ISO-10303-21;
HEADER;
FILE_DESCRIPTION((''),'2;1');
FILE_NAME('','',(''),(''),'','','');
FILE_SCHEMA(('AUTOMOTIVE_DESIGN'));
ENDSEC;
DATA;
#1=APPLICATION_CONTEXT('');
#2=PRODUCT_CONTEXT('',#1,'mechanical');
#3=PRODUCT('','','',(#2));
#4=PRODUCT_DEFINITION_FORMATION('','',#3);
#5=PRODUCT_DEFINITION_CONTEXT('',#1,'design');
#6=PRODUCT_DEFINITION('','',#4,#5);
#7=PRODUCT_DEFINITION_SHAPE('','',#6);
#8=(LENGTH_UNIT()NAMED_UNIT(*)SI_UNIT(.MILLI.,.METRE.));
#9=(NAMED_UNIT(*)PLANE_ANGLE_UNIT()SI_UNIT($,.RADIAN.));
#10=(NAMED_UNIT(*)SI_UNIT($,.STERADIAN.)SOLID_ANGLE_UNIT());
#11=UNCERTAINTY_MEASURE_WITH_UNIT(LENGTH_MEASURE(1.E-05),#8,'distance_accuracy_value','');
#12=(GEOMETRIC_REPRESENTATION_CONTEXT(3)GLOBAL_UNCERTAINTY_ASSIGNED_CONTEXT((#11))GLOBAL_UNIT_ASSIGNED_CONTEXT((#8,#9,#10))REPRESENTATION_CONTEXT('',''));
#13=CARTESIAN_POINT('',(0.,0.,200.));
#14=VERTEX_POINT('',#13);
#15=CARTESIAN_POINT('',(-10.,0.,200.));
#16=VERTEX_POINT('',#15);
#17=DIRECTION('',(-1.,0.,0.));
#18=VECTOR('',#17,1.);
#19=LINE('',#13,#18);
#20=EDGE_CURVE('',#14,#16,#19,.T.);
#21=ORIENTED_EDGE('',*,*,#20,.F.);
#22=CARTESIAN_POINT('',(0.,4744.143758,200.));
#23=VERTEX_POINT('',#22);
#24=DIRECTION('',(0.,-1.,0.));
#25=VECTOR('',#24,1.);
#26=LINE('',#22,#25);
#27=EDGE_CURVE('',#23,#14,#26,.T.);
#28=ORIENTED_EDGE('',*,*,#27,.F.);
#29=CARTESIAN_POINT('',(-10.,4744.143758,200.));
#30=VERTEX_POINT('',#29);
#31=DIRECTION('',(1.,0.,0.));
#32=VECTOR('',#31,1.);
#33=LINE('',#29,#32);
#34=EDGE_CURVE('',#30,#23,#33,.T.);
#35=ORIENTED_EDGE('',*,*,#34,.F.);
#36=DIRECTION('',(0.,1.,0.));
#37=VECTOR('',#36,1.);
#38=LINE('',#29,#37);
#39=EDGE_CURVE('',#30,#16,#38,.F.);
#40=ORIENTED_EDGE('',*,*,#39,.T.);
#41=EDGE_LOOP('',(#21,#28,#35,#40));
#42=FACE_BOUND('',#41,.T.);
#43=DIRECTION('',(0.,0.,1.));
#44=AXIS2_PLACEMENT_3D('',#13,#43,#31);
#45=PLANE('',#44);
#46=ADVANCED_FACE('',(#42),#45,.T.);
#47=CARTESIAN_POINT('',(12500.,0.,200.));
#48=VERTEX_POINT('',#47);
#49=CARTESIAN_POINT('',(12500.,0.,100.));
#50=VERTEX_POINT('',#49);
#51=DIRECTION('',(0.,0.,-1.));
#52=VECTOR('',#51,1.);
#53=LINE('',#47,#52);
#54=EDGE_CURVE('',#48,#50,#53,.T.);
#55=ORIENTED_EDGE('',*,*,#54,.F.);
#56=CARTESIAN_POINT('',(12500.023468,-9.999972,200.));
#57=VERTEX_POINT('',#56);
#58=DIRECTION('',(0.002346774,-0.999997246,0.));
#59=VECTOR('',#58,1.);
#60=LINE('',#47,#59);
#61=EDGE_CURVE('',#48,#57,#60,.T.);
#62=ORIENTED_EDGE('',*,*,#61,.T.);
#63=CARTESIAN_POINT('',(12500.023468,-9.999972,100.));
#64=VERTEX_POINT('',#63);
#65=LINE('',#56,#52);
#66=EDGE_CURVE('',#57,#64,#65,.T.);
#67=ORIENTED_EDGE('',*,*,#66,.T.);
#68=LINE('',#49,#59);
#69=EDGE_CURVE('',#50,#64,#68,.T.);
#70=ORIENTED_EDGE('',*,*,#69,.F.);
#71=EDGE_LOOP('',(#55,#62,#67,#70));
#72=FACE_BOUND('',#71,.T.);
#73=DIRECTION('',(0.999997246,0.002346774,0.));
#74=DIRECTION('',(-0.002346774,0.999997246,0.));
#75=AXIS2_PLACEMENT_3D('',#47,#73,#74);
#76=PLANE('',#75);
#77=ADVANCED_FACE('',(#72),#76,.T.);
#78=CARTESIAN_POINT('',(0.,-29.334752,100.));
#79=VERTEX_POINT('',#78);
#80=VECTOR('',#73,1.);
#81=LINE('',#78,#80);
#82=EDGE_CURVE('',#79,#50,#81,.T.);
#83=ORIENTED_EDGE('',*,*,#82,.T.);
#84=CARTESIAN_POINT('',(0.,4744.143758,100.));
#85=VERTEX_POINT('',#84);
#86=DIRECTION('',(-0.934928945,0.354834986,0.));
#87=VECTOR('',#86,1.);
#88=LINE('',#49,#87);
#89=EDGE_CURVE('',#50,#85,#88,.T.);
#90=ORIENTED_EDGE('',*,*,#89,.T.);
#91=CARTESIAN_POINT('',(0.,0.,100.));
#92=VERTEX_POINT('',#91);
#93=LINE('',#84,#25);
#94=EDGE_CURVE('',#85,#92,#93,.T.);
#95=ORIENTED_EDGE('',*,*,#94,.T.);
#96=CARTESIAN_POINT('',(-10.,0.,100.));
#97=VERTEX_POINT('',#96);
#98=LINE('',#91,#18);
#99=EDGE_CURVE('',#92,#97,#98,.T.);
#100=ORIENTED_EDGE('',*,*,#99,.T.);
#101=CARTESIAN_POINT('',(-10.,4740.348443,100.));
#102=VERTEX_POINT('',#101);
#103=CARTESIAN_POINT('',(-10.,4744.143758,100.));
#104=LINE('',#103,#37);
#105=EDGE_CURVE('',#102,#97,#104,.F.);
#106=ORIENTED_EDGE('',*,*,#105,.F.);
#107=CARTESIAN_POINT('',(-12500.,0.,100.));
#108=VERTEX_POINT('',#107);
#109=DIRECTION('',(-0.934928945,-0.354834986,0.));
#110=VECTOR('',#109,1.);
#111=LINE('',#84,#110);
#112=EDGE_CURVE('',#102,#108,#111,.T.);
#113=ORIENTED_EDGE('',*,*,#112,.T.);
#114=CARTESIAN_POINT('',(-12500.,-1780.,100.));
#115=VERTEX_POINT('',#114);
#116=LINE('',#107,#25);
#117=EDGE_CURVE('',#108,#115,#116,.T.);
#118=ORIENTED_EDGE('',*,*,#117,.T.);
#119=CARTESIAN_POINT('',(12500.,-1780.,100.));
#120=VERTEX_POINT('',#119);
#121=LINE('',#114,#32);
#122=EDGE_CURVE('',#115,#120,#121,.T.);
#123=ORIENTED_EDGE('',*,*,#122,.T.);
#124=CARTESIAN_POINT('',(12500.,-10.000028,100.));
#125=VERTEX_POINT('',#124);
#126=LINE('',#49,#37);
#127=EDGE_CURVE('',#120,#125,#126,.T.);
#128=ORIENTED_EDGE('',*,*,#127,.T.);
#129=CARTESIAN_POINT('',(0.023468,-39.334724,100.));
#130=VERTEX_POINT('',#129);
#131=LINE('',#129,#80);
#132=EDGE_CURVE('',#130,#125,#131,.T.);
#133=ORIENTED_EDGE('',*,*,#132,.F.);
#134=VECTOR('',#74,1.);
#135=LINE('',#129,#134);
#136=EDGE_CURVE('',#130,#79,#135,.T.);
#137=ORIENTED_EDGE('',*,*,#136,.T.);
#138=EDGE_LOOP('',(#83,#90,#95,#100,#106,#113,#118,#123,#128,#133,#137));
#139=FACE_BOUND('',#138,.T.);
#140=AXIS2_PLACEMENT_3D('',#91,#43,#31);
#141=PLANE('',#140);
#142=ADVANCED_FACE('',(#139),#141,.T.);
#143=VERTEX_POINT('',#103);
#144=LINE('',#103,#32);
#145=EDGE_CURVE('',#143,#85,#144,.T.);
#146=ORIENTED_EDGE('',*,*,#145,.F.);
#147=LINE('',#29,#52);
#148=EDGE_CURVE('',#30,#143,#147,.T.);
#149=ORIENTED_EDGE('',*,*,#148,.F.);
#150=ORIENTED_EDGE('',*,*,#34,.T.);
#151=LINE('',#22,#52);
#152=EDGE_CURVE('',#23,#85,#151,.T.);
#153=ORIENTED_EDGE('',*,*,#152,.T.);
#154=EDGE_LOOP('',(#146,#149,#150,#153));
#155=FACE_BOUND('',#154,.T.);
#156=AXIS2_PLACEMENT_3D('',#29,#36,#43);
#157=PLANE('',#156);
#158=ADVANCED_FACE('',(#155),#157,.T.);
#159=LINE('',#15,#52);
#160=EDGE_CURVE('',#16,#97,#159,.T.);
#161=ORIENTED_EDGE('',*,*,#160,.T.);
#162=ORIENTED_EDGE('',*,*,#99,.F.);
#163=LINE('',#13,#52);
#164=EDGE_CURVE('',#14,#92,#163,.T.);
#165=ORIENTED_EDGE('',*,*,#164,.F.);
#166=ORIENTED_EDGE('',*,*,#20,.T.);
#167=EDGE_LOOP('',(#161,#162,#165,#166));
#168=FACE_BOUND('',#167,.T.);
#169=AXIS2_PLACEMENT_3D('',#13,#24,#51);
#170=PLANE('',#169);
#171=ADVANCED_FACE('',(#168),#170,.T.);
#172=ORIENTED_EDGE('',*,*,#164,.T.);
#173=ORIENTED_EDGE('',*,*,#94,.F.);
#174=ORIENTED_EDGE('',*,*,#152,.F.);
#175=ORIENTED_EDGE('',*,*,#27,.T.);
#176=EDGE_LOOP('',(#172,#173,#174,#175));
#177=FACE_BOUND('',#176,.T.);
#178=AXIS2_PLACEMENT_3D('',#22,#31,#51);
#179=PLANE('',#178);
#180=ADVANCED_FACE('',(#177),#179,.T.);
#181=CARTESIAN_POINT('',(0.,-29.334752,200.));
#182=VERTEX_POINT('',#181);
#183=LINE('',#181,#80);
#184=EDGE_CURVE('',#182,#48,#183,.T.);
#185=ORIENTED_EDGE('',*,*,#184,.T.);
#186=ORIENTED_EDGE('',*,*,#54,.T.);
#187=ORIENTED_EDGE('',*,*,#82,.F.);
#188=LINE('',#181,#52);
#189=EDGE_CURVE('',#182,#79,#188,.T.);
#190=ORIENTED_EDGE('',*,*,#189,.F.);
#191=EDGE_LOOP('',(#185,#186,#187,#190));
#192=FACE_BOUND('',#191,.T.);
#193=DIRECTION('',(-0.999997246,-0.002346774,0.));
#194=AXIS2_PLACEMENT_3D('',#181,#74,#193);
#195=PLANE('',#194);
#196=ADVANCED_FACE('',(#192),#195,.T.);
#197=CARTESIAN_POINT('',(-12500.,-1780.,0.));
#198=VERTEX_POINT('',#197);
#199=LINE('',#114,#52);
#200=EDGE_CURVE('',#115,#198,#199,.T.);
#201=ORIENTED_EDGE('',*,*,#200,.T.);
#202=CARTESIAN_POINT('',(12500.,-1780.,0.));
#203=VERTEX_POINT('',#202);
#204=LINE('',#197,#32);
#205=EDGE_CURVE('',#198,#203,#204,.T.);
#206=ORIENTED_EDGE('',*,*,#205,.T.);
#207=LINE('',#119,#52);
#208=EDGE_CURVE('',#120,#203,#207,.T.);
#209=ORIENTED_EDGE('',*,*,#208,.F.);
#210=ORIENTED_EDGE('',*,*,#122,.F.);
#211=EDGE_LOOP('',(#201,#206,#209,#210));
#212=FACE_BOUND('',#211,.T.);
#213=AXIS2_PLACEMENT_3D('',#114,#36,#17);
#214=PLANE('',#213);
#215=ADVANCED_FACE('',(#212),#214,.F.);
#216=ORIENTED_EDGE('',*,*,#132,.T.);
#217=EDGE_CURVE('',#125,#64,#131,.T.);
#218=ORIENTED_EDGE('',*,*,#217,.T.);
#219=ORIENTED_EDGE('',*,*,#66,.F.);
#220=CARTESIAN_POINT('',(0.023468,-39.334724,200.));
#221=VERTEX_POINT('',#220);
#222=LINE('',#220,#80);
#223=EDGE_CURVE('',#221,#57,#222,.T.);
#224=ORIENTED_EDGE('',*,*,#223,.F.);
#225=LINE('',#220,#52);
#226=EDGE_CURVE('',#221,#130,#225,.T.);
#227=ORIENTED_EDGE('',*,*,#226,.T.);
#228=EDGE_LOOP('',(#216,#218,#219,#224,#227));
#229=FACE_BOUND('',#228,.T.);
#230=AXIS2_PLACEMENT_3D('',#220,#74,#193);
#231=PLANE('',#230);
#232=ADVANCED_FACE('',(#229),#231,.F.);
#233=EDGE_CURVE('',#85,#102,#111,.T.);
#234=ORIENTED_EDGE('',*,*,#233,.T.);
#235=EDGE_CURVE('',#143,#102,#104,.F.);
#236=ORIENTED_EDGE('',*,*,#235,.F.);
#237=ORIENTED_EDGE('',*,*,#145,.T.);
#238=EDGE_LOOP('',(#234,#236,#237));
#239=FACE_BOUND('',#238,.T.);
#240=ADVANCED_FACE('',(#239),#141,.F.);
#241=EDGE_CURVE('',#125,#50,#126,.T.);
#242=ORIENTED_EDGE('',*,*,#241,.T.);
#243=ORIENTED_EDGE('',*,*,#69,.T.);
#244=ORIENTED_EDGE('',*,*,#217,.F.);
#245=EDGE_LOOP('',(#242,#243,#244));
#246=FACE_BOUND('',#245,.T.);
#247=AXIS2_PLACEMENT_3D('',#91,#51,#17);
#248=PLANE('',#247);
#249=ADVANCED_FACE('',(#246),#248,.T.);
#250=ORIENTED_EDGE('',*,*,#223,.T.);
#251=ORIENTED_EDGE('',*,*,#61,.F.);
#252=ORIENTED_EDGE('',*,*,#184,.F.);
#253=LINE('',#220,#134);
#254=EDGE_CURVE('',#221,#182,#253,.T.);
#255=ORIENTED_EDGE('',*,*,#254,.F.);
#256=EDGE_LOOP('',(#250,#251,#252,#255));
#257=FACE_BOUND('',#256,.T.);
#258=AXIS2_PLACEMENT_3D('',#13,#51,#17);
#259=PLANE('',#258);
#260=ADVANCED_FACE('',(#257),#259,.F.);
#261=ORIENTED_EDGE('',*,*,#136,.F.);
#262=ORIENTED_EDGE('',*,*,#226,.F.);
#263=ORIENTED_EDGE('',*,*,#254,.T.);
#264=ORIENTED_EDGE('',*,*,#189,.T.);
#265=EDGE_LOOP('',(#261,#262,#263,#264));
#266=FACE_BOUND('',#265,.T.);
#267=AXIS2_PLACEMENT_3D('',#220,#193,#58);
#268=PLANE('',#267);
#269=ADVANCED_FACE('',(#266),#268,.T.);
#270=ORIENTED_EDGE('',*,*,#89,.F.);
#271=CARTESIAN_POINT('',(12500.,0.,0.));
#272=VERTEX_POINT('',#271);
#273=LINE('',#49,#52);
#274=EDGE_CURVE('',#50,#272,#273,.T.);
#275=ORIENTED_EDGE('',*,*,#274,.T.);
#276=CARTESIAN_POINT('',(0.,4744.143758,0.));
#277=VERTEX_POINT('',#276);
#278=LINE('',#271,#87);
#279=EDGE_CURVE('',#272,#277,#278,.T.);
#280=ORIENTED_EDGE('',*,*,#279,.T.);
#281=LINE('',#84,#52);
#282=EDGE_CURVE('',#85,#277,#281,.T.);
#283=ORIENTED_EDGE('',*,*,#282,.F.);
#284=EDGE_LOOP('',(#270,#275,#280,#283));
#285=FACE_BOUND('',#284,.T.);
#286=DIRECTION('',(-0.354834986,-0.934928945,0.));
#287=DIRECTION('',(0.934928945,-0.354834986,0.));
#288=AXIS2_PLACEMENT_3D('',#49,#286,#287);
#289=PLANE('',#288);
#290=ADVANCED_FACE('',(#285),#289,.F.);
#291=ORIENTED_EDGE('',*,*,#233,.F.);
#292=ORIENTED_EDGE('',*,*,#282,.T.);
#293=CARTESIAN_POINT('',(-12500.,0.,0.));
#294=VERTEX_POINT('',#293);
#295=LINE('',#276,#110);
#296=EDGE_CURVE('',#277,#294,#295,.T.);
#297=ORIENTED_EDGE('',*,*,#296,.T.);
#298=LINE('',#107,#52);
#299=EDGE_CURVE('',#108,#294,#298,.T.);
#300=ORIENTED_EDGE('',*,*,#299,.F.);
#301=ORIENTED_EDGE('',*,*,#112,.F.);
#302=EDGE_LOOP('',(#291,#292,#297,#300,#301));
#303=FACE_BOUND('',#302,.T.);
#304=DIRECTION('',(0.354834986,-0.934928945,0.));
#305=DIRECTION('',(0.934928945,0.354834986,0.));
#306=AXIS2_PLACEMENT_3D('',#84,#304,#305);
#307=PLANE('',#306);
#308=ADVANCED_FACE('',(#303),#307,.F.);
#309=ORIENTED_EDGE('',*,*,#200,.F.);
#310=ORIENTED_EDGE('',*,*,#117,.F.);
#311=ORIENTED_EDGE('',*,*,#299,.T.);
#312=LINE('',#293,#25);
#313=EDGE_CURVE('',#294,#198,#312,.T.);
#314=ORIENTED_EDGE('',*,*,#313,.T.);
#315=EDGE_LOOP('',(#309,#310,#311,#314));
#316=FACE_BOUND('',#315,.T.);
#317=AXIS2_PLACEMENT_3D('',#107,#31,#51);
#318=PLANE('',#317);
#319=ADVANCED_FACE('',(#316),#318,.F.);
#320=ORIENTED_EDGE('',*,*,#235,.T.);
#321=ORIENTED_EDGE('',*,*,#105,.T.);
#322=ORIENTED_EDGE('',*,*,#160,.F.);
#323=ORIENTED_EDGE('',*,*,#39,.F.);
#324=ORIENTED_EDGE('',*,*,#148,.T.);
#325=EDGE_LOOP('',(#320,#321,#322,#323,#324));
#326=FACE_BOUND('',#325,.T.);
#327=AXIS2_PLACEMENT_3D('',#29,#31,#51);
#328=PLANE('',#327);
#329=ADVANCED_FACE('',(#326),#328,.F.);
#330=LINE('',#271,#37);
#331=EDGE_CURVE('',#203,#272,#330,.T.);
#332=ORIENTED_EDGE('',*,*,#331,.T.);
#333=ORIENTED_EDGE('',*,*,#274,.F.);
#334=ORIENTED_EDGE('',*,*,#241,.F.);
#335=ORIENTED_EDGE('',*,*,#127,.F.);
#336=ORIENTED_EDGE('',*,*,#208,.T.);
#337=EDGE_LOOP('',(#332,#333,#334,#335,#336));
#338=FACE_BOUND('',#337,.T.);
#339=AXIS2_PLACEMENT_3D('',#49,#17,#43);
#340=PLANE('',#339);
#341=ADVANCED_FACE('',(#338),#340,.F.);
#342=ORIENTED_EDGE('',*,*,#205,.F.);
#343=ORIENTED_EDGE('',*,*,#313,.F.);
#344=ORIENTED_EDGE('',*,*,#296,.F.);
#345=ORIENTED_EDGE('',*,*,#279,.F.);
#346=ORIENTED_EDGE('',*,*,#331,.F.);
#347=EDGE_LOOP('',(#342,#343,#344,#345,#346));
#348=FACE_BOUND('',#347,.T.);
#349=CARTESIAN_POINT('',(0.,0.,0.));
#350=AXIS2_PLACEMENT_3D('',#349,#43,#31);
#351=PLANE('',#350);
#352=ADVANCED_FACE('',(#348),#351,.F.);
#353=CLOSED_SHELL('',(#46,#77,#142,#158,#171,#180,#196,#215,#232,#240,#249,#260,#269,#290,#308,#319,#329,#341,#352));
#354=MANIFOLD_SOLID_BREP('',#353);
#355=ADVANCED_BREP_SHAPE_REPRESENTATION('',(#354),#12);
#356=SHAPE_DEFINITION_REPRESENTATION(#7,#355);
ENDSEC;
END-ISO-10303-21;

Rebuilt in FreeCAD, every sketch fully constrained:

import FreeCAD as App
import Part
import Sketcher
from FreeCAD import Vector

doc = App.newDocument("Part")
body = doc.addObject("PartDesign::Body", "Body")

# Sketch on XY plane
sketch1 = body.newObject("Sketcher::SketchObject", "Sketch")
sketch1.AttachmentSupport = (doc.getObject("XY_Plane"), [""])
sketch1.MapMode = "FlatFace"
sketch1.addGeometry([
    Part.LineSegment(Vector(12500, 0, 0), Vector(0, 4744, 0)),  # 0
    Part.LineSegment(Vector(0, 4744, 0), Vector(-12500, 0, 0)),  # 1
    Part.LineSegment(Vector(-12500, 0, 0), Vector(-12500, -1780, 0)),  # 2
    Part.LineSegment(Vector(-12500, -1780, 0), Vector(12500, -1780, 0)),  # 3
    Part.LineSegment(Vector(12500, -1780, 0), Vector(12500, 0, 0)),  # 4
], False)
sketch1.addConstraint([
    Sketcher.Constraint("Coincident", 0, 2, 1, 1),
    Sketcher.Constraint("Coincident", 1, 2, 2, 1),
    Sketcher.Constraint("Coincident", 2, 2, 3, 1),
    Sketcher.Constraint("Coincident", 3, 2, 4, 1),
    Sketcher.Constraint("Coincident", 4, 2, 0, 1),
    Sketcher.Constraint("Vertical", 2),
    Sketcher.Constraint("Horizontal", 3),
    Sketcher.Constraint("Vertical", 4),
    Sketcher.Constraint("Symmetric", 1, 2, 4, 2, -1, 1),
    Sketcher.Constraint("PointOnObject", 0, 2, -2),
    Sketcher.Constraint("PointOnObject", 1, 2, -1),
    Sketcher.Constraint("DistanceX", 3, 1, 3, 2, 25000.0),
    Sketcher.Constraint("DistanceY", 2, 2, 2, 1, 1780.0),
    Sketcher.Constraint("Distance", 0, 13370.0),
])
pad1 = body.newObject("PartDesign::Pad", "Pad")
pad1.Profile = sketch1
pad1.Length = 100

# Sketch on XY plane
sketch2 = body.newObject("Sketcher::SketchObject", "Sketch001")
sketch2.AttachmentSupport = (doc.getObject("XY_Plane"), [""])
sketch2.MapMode = "FlatFace"
sketch2.AttachmentOffset = App.Placement(Vector(0, 0, 100), App.Rotation())
sketch2.addGeometry([
    Part.LineSegment(Vector(-10, 4744, 0), Vector(-10, 0, 0)),  # 0
    Part.LineSegment(Vector(-10, 0, 0), Vector(0, 0, 0)),  # 1
    Part.LineSegment(Vector(0, 0, 0), Vector(0, 4744, 0)),  # 2
    Part.LineSegment(Vector(0, 4744, 0), Vector(-10, 4744, 0)),  # 3
    Part.LineSegment(Vector(12500, 0, 0), Vector(0, -29, 0)),  # 4
    Part.LineSegment(Vector(0, -29, 0), Vector(0, -39, 0)),  # 5
    Part.LineSegment(Vector(0, -39, 0), Vector(12500, -10, 0)),  # 6
    Part.LineSegment(Vector(12500, -10, 0), Vector(12500, 0, 0)),  # 7
], False)
sketch2.addConstraint([
    Sketcher.Constraint("Coincident", 0, 2, 1, 1),
    Sketcher.Constraint("Coincident", 1, 2, 2, 1),
    Sketcher.Constraint("Coincident", 2, 2, 3, 1),
    Sketcher.Constraint("Coincident", 3, 2, 0, 1),
    Sketcher.Constraint("Coincident", 4, 2, 5, 1),
    Sketcher.Constraint("Coincident", 5, 2, 6, 1),
    Sketcher.Constraint("Coincident", 6, 2, 7, 1),
    Sketcher.Constraint("Coincident", 7, 2, 4, 1),
    Sketcher.Constraint("Vertical", 0),
    Sketcher.Constraint("Horizontal", 1),
    Sketcher.Constraint("Vertical", 2),
    Sketcher.Constraint("Horizontal", 3),
    Sketcher.Constraint("Coincident", 1, 2, -1, 1),
    Sketcher.Constraint("PointOnObject", 4, 2, -2),
    Sketcher.Constraint("PointOnObject", 7, 2, -1),
    Sketcher.Constraint("Perpendicular", 4, 5),
    Sketcher.Constraint("Parallel", 4, 6),
    Sketcher.Constraint("Perpendicular", 6, 7),
    Sketcher.Constraint("DistanceX", 1, 1, 1, 2, 10.0),
    Sketcher.Constraint("Distance", 5, 10.0),
    Sketcher.Constraint("DistanceX", -1, 1, 7, 2, 12500.0),
    Sketcher.Constraint("DistanceY", 0, 2, 0, 1, 4744.143758),
    Sketcher.Constraint("DistanceY", 4, 2, 2, 2, 4773.47851),
])
pad2 = body.newObject("PartDesign::Pad", "Pad001")
pad2.Profile = sketch2
pad2.Length = 100

doc.recompute()
